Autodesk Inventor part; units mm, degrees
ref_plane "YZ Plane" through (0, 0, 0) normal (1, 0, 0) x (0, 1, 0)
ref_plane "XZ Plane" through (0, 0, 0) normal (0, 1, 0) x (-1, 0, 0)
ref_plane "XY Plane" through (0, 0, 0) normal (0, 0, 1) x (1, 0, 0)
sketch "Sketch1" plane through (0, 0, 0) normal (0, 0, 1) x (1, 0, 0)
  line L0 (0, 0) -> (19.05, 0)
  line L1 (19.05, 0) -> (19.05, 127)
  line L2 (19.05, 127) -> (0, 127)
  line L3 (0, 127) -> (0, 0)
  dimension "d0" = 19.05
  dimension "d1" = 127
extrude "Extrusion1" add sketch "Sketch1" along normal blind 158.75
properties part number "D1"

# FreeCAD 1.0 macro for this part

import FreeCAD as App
import Part
import Sketcher
from FreeCAD import Vector
Q = App.Units.Quantity

doc = App.newDocument("Part")
body = doc.addObject("PartDesign::Body", "Body")

sketch1 = body.newObject("Sketcher::SketchObject", "Sketch")
sketch1.AttachmentSupport = (doc.getObject("XY_Plane"), [""])
sketch1.MapMode = "FlatFace"
sketch1.addGeometry([
    Part.LineSegment(Vector(0, 127, 0), Vector(0, 0, 0)),
    Part.LineSegment(Vector(0, 0, 0), Vector(19.05, 0, 0)),
    Part.LineSegment(Vector(19.05, 0, 0), Vector(19.05, 127, 0)),
    Part.LineSegment(Vector(19.05, 127, 0), Vector(0, 127, 0)),
], False)
sketch1.addConstraint([
    Sketcher.Constraint("Coincident", 0, 2, 1, 1),
    Sketcher.Constraint("Coincident", 1, 2, 2, 1),
    Sketcher.Constraint("Coincident", 2, 2, 3, 1),
    Sketcher.Constraint("Coincident", 3, 2, 0, 1),
    Sketcher.Constraint("Vertical", 0),
    Sketcher.Constraint("Horizontal", 1),
    Sketcher.Constraint("Vertical", 2),
    Sketcher.Constraint("Horizontal", 3),
    Sketcher.Constraint("Coincident", 0, 2, -1, 1),
    Sketcher.Constraint("DistanceY", 0, 2, 0, 1, Q("5 in")),
    Sketcher.Constraint("DistanceX", 1, 1, 1, 2, Q("0.75 in")),
])
pad1 = body.newObject("PartDesign::Pad", "Pad")
pad1.Profile = sketch1
pad1.Length = Q("6.25 in")

doc.recompute()
